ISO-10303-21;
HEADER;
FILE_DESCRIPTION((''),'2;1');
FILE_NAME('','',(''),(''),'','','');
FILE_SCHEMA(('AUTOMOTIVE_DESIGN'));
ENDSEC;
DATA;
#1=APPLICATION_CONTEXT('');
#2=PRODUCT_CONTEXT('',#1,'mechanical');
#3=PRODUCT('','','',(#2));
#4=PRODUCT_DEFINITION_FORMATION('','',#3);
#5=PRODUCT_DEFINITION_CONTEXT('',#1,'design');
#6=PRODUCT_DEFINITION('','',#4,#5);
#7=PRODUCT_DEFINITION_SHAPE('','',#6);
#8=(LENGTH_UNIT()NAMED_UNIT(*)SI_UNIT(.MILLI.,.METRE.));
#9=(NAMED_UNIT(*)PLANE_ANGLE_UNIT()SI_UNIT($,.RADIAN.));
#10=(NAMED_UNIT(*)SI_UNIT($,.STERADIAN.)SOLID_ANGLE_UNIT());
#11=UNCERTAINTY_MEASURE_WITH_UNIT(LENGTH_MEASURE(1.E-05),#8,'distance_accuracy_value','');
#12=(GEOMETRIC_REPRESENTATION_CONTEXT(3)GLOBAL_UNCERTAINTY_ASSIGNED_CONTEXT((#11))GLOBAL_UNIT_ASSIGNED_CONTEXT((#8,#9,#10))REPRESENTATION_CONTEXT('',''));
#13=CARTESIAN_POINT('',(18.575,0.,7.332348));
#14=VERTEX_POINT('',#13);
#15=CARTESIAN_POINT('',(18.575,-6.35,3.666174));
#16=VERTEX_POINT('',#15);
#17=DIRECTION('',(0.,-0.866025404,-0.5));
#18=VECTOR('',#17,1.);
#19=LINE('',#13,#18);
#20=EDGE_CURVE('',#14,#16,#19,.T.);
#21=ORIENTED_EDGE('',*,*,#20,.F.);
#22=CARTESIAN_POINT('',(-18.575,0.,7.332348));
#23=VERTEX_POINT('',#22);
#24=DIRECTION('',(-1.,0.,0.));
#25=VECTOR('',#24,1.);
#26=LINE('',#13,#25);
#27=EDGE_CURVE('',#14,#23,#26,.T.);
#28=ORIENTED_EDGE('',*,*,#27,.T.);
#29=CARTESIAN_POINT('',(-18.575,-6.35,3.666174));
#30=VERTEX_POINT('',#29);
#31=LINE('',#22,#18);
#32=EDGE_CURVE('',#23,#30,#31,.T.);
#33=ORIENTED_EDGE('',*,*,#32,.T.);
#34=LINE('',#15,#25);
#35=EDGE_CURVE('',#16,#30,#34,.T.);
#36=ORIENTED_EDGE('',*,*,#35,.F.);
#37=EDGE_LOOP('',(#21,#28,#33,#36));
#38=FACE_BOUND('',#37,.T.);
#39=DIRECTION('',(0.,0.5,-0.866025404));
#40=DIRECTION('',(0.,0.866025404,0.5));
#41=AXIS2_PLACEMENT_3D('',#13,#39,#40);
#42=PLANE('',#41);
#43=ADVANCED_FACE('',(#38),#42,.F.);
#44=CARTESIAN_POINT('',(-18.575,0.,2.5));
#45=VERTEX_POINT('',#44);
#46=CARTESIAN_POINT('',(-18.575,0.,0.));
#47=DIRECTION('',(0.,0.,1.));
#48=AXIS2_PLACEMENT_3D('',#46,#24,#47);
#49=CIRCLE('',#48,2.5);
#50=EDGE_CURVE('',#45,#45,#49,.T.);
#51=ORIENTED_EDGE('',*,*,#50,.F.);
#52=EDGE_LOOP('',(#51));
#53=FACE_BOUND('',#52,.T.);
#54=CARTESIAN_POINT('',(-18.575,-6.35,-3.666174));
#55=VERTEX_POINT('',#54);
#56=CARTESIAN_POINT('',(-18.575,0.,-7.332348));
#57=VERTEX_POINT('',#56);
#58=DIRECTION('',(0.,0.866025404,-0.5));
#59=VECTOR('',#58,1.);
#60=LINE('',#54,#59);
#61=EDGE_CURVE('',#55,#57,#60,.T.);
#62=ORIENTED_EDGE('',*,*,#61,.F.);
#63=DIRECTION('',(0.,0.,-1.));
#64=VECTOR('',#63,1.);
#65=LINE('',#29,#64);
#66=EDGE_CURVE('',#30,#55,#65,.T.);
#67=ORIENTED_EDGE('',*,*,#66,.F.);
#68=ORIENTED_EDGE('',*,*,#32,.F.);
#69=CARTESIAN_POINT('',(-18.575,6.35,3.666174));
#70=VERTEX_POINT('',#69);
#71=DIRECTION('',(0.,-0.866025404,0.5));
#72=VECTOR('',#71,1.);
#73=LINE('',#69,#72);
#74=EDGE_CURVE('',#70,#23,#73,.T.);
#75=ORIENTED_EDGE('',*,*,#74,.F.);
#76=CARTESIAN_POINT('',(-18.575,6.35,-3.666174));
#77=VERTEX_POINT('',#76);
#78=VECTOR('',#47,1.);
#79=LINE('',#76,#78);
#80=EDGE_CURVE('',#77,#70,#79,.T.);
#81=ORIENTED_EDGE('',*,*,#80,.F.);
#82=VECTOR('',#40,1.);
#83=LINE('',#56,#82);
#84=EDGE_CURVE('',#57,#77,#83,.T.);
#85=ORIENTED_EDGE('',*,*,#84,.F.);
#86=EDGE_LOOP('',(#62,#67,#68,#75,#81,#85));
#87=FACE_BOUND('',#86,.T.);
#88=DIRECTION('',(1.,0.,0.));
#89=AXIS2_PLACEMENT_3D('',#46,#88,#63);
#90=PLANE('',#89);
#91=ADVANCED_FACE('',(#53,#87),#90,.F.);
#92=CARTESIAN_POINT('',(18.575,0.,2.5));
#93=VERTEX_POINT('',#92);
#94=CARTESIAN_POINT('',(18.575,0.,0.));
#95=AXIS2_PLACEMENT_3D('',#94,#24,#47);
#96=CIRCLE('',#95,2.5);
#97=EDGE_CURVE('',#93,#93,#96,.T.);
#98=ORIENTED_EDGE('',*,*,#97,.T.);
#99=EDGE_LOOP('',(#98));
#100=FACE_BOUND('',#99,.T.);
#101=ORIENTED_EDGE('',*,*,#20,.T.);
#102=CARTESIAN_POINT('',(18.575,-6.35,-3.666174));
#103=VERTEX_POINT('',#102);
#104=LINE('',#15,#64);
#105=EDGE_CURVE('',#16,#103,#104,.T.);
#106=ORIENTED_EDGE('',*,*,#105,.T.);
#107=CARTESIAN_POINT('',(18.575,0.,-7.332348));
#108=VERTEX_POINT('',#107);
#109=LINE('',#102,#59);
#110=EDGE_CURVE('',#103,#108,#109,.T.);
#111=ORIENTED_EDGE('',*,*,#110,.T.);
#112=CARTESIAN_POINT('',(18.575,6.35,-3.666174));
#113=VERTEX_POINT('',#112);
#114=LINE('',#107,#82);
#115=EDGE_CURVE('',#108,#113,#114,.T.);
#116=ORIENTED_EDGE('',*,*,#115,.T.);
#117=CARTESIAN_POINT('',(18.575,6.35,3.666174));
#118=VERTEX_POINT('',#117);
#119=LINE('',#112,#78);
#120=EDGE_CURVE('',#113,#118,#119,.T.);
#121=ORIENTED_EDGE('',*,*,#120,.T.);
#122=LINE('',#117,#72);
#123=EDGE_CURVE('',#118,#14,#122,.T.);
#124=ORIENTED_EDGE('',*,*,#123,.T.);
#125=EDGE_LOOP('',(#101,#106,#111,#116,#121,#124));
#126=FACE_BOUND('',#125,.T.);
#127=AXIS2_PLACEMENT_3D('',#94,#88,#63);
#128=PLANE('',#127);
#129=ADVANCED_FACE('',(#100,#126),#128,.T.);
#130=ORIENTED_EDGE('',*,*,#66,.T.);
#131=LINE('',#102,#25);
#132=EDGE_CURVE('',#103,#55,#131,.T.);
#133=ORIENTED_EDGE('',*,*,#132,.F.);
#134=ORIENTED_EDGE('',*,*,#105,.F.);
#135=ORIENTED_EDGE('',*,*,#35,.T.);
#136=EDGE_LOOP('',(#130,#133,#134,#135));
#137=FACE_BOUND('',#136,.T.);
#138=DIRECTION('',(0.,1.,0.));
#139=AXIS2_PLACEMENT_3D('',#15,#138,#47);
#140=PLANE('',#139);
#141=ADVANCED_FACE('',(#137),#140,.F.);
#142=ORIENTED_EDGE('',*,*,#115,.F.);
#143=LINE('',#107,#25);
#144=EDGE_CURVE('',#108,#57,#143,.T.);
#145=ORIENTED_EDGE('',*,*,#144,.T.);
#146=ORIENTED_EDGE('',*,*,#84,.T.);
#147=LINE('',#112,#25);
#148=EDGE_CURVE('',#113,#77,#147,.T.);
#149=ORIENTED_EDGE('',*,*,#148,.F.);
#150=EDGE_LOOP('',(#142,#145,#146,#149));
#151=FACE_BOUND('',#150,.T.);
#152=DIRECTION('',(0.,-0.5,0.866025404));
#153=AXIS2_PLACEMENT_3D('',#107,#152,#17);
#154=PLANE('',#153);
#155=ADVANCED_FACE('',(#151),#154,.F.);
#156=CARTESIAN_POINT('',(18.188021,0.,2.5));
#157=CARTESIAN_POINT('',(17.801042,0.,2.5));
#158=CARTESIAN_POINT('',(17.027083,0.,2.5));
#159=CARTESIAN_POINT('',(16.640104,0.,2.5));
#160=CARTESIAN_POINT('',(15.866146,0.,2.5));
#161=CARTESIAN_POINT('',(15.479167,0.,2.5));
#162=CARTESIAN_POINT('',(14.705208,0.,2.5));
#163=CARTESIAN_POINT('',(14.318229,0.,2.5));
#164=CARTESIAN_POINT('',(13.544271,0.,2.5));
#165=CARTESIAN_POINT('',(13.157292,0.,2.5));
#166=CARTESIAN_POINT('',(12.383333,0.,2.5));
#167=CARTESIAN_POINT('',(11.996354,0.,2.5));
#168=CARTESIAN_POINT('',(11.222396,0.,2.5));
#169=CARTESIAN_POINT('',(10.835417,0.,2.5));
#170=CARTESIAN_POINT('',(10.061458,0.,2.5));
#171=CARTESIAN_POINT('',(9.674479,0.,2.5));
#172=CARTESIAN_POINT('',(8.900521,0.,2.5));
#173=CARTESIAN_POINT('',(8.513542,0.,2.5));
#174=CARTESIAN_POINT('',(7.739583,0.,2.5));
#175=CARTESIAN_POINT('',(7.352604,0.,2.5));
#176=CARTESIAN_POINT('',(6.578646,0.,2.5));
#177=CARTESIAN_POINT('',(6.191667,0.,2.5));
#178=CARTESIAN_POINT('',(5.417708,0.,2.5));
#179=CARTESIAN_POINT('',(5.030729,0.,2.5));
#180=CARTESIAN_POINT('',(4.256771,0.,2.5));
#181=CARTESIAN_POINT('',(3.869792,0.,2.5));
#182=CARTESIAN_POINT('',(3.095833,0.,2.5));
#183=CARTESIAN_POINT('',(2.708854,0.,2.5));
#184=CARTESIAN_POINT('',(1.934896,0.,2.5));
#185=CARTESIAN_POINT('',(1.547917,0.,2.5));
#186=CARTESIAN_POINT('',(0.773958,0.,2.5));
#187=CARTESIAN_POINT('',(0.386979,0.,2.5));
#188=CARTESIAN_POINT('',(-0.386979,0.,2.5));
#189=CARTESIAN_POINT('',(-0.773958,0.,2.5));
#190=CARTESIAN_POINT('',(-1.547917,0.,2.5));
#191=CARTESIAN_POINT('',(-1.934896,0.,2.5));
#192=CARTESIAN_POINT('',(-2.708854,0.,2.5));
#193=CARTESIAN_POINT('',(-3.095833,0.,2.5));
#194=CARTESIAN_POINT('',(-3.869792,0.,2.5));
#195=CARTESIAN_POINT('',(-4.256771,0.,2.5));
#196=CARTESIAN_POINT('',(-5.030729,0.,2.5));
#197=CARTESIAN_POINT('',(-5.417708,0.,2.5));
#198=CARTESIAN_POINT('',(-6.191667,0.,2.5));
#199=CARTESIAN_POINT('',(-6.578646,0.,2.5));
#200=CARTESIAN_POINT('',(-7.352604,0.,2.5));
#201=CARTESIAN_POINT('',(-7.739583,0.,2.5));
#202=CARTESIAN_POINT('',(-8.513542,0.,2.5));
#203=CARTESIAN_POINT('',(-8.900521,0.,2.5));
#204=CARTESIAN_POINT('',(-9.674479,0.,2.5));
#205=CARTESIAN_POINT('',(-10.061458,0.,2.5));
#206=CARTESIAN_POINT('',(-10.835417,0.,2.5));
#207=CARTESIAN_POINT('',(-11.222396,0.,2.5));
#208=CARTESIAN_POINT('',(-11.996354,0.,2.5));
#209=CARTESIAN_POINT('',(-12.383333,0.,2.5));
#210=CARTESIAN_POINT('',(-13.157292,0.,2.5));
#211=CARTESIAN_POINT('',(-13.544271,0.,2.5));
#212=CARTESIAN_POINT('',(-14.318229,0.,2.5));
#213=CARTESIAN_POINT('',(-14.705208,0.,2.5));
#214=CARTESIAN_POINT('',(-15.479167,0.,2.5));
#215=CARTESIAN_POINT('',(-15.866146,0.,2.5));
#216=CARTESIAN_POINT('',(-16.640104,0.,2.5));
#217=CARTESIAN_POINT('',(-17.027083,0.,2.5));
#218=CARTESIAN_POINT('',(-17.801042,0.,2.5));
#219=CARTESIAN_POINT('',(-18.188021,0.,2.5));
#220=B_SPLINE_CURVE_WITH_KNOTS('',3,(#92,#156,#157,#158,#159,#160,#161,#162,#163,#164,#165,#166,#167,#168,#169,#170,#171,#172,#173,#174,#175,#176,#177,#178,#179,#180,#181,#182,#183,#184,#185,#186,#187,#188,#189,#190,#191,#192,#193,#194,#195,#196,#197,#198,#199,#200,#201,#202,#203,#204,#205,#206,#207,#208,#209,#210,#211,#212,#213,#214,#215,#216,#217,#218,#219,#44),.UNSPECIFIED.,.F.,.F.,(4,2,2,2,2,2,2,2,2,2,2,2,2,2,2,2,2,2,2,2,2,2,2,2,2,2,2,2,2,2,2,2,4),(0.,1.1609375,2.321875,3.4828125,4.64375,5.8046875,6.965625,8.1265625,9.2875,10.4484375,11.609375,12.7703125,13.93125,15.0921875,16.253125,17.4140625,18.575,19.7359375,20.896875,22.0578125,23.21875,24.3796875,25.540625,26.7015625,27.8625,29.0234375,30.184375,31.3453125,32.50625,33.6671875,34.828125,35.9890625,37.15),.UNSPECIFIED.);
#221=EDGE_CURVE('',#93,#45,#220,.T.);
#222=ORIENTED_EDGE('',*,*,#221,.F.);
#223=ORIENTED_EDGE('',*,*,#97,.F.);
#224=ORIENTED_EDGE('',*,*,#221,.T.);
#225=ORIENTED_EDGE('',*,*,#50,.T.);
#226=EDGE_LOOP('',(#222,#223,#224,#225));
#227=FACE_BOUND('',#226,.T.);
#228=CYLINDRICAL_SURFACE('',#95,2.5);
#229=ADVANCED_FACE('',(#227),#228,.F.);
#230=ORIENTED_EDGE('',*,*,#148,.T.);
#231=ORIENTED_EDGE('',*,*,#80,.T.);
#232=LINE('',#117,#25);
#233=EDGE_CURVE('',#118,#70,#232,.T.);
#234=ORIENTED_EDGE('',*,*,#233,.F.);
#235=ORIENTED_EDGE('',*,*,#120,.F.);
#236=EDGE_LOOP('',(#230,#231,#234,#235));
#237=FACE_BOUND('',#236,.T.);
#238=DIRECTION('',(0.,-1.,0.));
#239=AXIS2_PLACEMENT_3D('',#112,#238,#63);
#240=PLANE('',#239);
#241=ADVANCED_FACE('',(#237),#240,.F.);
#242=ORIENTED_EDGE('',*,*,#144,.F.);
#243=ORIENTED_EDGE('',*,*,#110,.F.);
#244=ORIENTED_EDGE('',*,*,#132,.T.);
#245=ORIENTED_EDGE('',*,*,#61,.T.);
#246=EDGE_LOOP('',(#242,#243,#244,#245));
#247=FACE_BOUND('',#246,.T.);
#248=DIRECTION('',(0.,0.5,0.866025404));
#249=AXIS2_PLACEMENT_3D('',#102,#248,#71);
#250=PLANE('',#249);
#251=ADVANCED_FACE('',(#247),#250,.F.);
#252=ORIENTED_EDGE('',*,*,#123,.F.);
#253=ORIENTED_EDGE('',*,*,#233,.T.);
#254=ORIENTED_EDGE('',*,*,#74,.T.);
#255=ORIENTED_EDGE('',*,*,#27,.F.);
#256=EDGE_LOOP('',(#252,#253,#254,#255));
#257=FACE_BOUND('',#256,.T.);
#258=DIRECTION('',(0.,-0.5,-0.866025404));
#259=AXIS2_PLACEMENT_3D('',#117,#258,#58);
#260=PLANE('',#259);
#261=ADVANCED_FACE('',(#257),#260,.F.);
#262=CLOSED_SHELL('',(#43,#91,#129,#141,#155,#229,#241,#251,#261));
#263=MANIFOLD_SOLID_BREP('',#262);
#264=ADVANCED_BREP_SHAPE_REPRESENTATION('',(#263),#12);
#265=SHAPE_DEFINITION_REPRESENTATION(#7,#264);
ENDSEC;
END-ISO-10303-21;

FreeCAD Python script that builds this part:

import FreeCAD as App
import Part
import Sketcher

V = App.Vector
Q = App.Units.Quantity


def add_polygon(sketch, points):
    """Adds a closed chain of lines whose ends are joined by coincident constraints."""
    first, n = sketch.GeometryCount, len(points)
    for a, b in zip(points, points[1:] + points[:1]):
        sketch.addGeometry(Part.LineSegment(App.Vector(*a, 0), App.Vector(*b, 0)), False)
    for i in range(n):
        sketch.addConstraint(Sketcher.Constraint("Coincident", first + i, 2, first + (i + 1) % n, 1))

doc = App.newDocument("Part")
body = doc.addObject("PartDesign::Body", "Body")

# Sketch on YZ plane
sketch1 = doc.addObject("Sketcher::SketchObject", "Sketch")
body.addObject(sketch1)
sketch1.AttachmentSupport = (doc.YZ_Plane, [""])
sketch1.MapMode = "FlatFace"
add_polygon(sketch1, [(0, -7), (6, -4), (6, 4), (0, 7), (-6, 4), (-6, -4)])  # lines 0-5
sketch1.addConstraint(Sketcher.Constraint("Vertical", 1))
sketch1.addConstraint(Sketcher.Constraint("Vertical", 4))
sketch1.addConstraint(Sketcher.Constraint("Symmetric", 0, 2, 3, 2, -1, 1))
sketch1.addConstraint(Sketcher.Constraint("Symmetric", 2, 2, 5, 2, -1, 1))
sketch1.addConstraint(Sketcher.Constraint("PointOnObject", 2, 2, -2))
sketch1.addConstraint(Sketcher.Constraint("Parallel", 2, 5))
sketch1.addConstraint(Sketcher.Constraint("Horizontal", 1, 2, 3, 2))
sketch1.addConstraint(Sketcher.Constraint("Angle", 0, Q("30 deg")))
sketch1.addConstraint(Sketcher.Constraint("DistanceX", 3, 2, 1, 2, Q("12.7 mm")))
sketch1.addConstraint(Sketcher.Constraint("DistanceY", 1, 1, 1, 2, Q("7.332348 mm")))
pad1 = doc.addObject("PartDesign::Pad", "Pad")
body.addObject(pad1)
pad1.Profile = sketch1
pad1.Length = 37.15
pad1.Midplane = True

# Sketch on YZ plane
sketch2 = doc.addObject("Sketcher::SketchObject", "Sketch001")
body.addObject(sketch2)
sketch2.AttachmentSupport = (doc.YZ_Plane, [""])
sketch2.MapMode = "FlatFace"
sketch2.AttachmentOffset = App.Placement(V(0, 0, -18.575), App.Rotation())
sketch2.addGeometry(Part.Circle(V(0, 0, 0), V(0, 0, 1), 2.5), False)
sketch2.addConstraint(Sketcher.Constraint("Coincident", 0, 3, -1, 1))
sketch2.addConstraint(Sketcher.Constraint("Diameter", 0, Q("5 mm")))
pocket1 = doc.addObject("PartDesign::Pocket", "Pocket")
body.addObject(pocket1)
pocket1.Profile = sketch2
pocket1.Type = "ThroughAll"
pocket1.Reversed = True

doc.recompute()
